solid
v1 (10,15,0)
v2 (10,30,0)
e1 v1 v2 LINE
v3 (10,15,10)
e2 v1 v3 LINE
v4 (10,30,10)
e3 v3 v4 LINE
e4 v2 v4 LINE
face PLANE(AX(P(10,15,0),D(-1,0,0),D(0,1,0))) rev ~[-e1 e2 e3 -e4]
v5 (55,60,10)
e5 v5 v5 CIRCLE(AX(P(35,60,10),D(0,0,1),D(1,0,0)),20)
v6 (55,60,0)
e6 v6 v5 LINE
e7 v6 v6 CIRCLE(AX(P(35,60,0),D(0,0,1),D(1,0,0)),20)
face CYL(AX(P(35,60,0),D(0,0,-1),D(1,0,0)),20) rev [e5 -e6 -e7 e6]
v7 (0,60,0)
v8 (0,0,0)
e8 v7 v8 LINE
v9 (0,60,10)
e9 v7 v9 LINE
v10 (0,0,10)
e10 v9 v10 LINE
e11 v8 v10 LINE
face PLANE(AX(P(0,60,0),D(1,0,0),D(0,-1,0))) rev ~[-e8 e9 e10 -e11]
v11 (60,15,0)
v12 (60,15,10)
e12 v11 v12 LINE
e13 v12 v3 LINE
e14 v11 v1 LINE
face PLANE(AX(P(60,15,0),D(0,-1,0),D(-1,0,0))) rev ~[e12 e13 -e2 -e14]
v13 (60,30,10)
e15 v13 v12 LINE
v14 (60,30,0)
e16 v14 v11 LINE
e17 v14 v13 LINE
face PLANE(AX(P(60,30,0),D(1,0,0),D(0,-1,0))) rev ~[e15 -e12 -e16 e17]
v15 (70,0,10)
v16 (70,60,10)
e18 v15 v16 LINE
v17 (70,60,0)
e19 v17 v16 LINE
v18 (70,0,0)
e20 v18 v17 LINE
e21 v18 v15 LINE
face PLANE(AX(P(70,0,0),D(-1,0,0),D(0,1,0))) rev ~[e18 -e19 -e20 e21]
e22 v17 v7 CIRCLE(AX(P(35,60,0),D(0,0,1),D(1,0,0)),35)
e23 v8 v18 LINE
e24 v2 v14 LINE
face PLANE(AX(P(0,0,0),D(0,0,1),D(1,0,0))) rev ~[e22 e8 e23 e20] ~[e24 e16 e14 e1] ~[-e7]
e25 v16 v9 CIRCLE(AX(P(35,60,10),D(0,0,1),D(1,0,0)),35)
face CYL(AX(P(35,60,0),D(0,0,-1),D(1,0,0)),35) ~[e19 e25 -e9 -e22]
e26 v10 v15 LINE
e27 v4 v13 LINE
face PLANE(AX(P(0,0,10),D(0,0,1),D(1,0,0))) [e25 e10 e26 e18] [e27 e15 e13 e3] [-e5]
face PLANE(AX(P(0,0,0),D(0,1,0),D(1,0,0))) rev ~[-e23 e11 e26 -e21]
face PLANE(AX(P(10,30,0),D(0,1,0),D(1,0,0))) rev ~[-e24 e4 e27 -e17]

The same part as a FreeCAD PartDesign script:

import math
import FreeCAD as App
import Part
import Sketcher
from FreeCAD import Vector
Q = App.Units.Quantity

doc = App.newDocument("Part")
body = doc.addObject("PartDesign::Body", "Body")

# Sketch on XY plane
sketch1 = body.newObject("Sketcher::SketchObject", "Sketch")
sketch1.AttachmentSupport = (doc.getObject("XY_Plane"), [""])
sketch1.MapMode = "FlatFace"
sketch1.addGeometry([
    Part.LineSegment(Vector(0, 60, 0), Vector(0, 0, 0)),  # 0
    Part.LineSegment(Vector(0, 0, 0), Vector(70, 0, 0)),  # 1
    Part.LineSegment(Vector(70, 0, 0), Vector(70, 60, 0)),  # 2
    Part.ArcOfCircle(Part.Circle(Vector(35, 60, 0), Vector(0, 0, 1), 35), math.radians(0), math.radians(180)),  # 3
    Part.LineSegment(Vector(10, 15, 0), Vector(10, 30, 0)),  # 4
    Part.LineSegment(Vector(10, 30, 0), Vector(60, 30, 0)),  # 5
    Part.LineSegment(Vector(60, 30, 0), Vector(60, 15, 0)),  # 6
    Part.LineSegment(Vector(60, 15, 0), Vector(10, 15, 0)),  # 7
    Part.Circle(Vector(35, 60, 0), Vector(0, 0, 1), 20),  # 8
], False)
sketch1.addConstraint([
    Sketcher.Constraint("Coincident", 0, 2, 1, 1),
    Sketcher.Constraint("Coincident", 1, 2, 2, 1),
    Sketcher.Constraint("Tangent", 2, 2, 3, 1),
    Sketcher.Constraint("Tangent", 3, 2, 0, 1),
    Sketcher.Constraint("Coincident", 4, 2, 5, 1),
    Sketcher.Constraint("Coincident", 5, 2, 6, 1),
    Sketcher.Constraint("Coincident", 6, 2, 7, 1),
    Sketcher.Constraint("Coincident", 7, 2, 4, 1),
    Sketcher.Constraint("Vertical", 0),
    Sketcher.Constraint("Horizontal", 1),
    Sketcher.Constraint("Vertical", 2),
    Sketcher.Constraint("Vertical", 4),
    Sketcher.Constraint("Horizontal", 5),
    Sketcher.Constraint("Vertical", 6),
    Sketcher.Constraint("Horizontal", 7),
    Sketcher.Constraint("Coincident", 0, 2, -1, 1),
    Sketcher.Constraint("Coincident", 8, 3, 3, 3),
    Sketcher.Constraint("Diameter", 8, Q("40 mm")),
    Sketcher.Constraint("Radius", 3, Q("35 mm")),
    Sketcher.Constraint("DistanceX", 5, 1, 5, 2, Q("50 mm")),
    Sketcher.Constraint("DistanceY", 0, 2, 0, 1, Q("60 mm")),
    Sketcher.Constraint("DistanceY", 4, 1, 4, 2, Q("15 mm")),
    Sketcher.Constraint("DistanceX", -1, 1, 4, 2, Q("10 mm")),
    Sketcher.Constraint("DistanceY", -1, 1, 6, 2, Q("15 mm")),
])
pad1 = body.newObject("PartDesign::Pad", "Pad")
pad1.Profile = sketch1
pad1.Length = 10

doc.recompute()
